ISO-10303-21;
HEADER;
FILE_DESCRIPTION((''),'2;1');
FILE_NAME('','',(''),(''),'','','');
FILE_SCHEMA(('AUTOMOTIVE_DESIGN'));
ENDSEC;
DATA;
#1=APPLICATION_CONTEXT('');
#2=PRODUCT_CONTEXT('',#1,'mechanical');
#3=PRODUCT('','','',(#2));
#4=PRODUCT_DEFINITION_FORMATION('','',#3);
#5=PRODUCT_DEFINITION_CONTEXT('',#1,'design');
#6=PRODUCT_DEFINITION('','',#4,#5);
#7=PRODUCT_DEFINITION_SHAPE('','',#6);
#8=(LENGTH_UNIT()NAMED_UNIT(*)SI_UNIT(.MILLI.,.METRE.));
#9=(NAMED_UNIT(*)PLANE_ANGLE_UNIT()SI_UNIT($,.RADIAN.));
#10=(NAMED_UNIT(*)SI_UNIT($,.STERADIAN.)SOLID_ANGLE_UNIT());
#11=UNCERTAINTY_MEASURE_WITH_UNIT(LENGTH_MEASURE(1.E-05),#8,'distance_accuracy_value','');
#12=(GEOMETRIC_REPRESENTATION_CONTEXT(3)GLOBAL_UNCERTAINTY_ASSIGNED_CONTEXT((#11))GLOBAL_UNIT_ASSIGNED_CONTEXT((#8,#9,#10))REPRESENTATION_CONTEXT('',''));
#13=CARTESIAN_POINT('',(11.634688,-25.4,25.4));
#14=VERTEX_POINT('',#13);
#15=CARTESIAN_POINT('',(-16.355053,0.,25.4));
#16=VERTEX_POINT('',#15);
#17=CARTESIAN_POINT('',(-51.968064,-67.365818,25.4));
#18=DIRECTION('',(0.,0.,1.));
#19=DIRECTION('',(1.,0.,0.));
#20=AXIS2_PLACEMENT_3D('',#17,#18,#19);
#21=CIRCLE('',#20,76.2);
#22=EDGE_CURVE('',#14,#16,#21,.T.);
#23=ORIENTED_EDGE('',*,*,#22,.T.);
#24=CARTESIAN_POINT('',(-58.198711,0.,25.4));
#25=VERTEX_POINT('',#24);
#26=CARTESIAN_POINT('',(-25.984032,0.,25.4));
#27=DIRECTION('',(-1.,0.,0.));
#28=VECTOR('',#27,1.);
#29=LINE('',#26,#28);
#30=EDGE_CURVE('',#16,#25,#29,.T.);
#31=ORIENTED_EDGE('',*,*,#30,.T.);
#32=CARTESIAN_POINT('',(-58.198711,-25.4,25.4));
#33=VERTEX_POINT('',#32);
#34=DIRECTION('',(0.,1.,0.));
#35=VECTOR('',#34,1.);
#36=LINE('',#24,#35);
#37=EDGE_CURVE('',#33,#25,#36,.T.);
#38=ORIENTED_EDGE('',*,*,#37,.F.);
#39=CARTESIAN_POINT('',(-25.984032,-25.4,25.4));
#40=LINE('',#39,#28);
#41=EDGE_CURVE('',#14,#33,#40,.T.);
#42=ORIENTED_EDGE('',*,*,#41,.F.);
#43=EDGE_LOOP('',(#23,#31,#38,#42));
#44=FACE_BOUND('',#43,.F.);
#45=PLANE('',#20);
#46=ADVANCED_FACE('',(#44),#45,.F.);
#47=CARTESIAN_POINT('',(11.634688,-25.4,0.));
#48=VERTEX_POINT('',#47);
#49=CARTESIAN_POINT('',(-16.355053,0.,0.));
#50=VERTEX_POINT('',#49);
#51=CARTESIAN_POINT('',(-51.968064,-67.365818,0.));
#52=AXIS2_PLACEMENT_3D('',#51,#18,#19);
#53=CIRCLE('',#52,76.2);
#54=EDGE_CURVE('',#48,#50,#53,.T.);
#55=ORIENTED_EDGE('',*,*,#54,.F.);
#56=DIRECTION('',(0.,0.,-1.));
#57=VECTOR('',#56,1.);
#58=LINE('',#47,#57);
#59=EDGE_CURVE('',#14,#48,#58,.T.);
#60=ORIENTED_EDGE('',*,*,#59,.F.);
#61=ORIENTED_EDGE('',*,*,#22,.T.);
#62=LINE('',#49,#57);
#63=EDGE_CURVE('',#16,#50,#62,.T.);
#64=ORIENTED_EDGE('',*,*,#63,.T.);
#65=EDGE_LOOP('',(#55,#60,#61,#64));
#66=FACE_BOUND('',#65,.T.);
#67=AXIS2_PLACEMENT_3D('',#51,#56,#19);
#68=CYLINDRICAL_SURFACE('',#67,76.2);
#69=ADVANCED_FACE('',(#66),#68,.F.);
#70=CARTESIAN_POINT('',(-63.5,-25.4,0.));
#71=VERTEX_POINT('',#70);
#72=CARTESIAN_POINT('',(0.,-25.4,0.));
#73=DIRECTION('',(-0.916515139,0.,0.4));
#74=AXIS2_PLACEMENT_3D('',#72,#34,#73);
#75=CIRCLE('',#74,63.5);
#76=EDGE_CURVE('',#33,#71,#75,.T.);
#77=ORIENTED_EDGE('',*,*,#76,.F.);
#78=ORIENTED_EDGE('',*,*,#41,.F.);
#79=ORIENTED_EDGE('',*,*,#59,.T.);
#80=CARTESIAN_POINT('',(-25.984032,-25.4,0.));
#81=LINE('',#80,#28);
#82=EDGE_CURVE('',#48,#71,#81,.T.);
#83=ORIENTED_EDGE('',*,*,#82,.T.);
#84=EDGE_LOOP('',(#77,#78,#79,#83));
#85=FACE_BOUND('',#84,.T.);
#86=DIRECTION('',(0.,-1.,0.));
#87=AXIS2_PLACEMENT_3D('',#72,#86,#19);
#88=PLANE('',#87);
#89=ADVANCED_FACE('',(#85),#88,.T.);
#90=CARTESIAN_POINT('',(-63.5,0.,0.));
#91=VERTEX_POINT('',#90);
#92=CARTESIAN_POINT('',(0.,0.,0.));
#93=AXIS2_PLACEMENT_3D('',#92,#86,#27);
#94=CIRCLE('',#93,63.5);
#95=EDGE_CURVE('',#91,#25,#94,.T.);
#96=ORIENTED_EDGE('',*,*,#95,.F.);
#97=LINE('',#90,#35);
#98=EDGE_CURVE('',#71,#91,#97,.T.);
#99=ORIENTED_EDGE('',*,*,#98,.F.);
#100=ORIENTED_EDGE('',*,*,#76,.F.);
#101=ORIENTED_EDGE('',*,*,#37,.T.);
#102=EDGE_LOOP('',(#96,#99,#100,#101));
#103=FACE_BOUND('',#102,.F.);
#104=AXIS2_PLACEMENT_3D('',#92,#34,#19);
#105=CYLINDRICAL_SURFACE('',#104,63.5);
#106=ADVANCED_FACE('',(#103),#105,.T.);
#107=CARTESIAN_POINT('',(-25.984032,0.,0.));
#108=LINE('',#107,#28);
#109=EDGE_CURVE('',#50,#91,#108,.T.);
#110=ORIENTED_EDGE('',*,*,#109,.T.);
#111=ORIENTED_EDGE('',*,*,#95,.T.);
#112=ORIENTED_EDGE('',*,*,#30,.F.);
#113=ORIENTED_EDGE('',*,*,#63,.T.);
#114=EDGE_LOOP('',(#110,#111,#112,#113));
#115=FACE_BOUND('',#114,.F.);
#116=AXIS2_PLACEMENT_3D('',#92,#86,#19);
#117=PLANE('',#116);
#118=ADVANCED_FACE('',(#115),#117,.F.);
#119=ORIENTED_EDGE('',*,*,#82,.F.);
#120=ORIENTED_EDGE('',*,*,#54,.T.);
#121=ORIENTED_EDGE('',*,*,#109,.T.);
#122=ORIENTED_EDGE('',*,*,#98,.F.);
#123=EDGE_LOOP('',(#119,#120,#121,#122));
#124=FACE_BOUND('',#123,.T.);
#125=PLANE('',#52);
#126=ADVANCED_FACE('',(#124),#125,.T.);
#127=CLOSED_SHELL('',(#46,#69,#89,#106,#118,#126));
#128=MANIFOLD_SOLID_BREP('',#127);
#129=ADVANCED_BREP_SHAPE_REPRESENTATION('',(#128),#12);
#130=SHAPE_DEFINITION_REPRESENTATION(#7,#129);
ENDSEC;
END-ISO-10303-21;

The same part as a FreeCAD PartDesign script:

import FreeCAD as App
import Part
import Sketcher
from FreeCAD import Vector
Q = App.Units.Quantity

doc = App.newDocument("Part")
params = doc.addObject("Spreadsheet::Sheet", "Params")
for row, (alias, value) in enumerate([
    ("sketch1_diameter", "5 in"),
    ("pad1_length", "1 in"),
    ("sketch2_diameter", "6 in"),
    ("pad2_length", "1 in"),
], start=1):
    params.set(f"A{row}", alias)
    params.set(f"B{row}", "=" + value)
    params.setAlias(f"B{row}", alias)

body = doc.addObject("PartDesign::Body", "Body")

# Sketch on XZ plane
sketch1 = body.newObject("Sketcher::SketchObject", "Sketch")
sketch1.AttachmentSupport = (doc.getObject("XZ_Plane"), [""])
sketch1.MapMode = "FlatFace"
sketch1.addGeometry(Part.Circle(Vector(0, 0, 0), Vector(0, 0, 1), 63.5), False)
sketch1.addConstraint([
    Sketcher.Constraint("Coincident", 0, 3, -1, 1),
    Sketcher.Constraint("Diameter", 0, Q("5 in")),
])
sketch1.setExpression("Constraints[1]", "Params.sketch1_diameter")
pad1 = body.newObject("PartDesign::Pad", "Pad")
pad1.Profile = sketch1
pad1.setExpression("Length", "Params.pad1_length")
body2 = doc.addObject("PartDesign::Body", "Body001")

# Sketch on XY plane
sketch2 = body2.newObject("Sketcher::SketchObject", "Sketch001")
sketch2.AttachmentSupport = (doc.getObject("XY_Plane001"), [""])
sketch2.MapMode = "FlatFace"
sketch2.addGeometry(Part.Circle(Vector(-51.968064, -67.365818, 0), Vector(0, 0, 1), 76.2), False)
sketch2.addConstraint([
    Sketcher.Constraint("Diameter", 0, Q("6 in")),
    Sketcher.Constraint("DistanceY", 0, 3, -1, 1, 67.365818),
    Sketcher.Constraint("DistanceX", 0, 3, -1, 1, 51.968064),
])
sketch2.setExpression("Constraints[0]", "Params.sketch2_diameter")
pad2 = body2.newObject("PartDesign::Pad", "Pad001")
pad2.Profile = sketch2
pad2.setExpression("Length", "Params.pad2_length")
doc.recompute()

boolean = body.newObject("PartDesign::Boolean", "Boolean")
boolean.Type = "Cut"
boolean.addObjects([body2])

doc.recompute()
